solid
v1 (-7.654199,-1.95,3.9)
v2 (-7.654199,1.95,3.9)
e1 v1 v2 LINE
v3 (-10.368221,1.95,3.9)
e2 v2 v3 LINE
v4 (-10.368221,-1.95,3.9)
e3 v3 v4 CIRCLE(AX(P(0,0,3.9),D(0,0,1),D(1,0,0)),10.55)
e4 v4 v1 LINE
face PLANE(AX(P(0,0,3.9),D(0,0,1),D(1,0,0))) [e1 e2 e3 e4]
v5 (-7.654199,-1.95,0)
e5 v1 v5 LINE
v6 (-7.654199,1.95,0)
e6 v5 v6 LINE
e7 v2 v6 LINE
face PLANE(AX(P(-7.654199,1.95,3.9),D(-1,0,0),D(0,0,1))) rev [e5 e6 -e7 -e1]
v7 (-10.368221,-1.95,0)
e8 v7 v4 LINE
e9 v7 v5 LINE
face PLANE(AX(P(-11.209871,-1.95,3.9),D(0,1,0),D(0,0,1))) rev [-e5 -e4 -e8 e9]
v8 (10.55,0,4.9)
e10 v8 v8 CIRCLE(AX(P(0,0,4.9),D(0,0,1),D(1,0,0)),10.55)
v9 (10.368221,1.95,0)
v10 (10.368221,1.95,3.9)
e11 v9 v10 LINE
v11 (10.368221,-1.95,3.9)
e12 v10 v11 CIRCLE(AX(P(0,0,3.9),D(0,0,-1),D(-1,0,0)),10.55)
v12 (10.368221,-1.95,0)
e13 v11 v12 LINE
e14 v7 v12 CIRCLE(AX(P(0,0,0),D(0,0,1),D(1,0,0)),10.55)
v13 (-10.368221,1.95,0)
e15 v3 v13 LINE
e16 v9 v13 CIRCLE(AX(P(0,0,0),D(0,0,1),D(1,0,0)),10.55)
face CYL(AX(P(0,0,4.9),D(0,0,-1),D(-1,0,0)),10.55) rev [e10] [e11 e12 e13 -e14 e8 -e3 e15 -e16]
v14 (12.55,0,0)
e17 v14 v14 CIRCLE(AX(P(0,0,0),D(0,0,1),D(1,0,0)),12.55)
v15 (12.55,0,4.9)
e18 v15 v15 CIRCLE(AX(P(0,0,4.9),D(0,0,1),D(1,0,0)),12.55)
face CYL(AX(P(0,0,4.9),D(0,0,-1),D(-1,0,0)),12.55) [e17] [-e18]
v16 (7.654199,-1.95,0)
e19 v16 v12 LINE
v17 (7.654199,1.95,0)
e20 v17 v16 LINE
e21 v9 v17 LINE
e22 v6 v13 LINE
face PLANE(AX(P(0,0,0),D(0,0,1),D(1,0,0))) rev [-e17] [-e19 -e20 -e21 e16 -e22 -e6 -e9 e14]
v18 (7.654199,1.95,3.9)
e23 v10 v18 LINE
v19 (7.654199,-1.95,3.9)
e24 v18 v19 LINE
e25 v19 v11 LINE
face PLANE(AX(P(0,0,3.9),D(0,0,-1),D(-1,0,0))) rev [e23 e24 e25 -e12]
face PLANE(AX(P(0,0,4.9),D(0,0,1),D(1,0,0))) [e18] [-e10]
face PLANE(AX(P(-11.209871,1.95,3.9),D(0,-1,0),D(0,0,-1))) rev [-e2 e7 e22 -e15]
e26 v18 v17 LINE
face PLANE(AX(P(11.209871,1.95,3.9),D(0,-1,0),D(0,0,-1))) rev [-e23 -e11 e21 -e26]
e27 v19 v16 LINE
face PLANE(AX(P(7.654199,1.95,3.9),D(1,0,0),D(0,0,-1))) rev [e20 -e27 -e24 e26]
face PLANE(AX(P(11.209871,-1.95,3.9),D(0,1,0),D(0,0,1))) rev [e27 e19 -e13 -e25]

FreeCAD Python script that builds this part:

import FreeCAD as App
import Part
import Sketcher

V = App.Vector
Q = App.Units.Quantity

doc = App.newDocument("Part")
body = doc.addObject("PartDesign::Body", "Body")

# Sketch on XY plane
sketch1 = body.newObject("Sketcher::SketchObject", "Sketch")
sketch1.AttachmentSupport = (doc.getObject("XY_Plane"), [""])
sketch1.MapMode = "FlatFace"
sketch1.addGeometry([
    Part.Circle(V(0, 0, 0), V(0, 0, 1), 13),
    Part.Circle(V(0, 0, 0), V(0, 0, 1), 11),
], False)
sketch1.addConstraint([
    Sketcher.Constraint("Coincident", 0, 3, -1, 1),
    Sketcher.Constraint("Coincident", 1, 3, -1, 1),
    Sketcher.Constraint("Diameter", 0, Q("25.1 mm")),
    Sketcher.Constraint("Diameter", 1, Q("21.1 mm")),
])
pad1 = body.newObject("PartDesign::Pad", "Pad")
pad1.Profile = sketch1
pad1.Length = 4.9

# Sketch on XY plane
sketch2 = body.newObject("Sketcher::SketchObject", "Sketch001")
sketch2.AttachmentSupport = (doc.getObject("XY_Plane"), [""])
sketch2.MapMode = "FlatFace"
sketch2.addGeometry([
    Part.LineSegment(V(-11.2, 1.9, 0), V(-11.2, -1.9, 0)),  # 0
    Part.LineSegment(V(-11.2, -1.9, 0), V(-7.7, -1.9, 0)),  # 1
    Part.LineSegment(V(-7.7, -1.9, 0), V(-7.7, 1.9, 0)),  # 2
    Part.LineSegment(V(-7.7, 1.9, 0), V(-11.2, 1.9, 0)),  # 3
    Part.LineSegment(V(7.7, 1.9, 0), V(7.7, -1.9, 0)),  # 4
    Part.LineSegment(V(7.7, -1.9, 0), V(11.2, -1.9, 0)),  # 5
    Part.LineSegment(V(11.2, -1.9, 0), V(11.2, 1.9, 0)),  # 6
    Part.LineSegment(V(11.2, 1.9, 0), V(7.7, 1.9, 0)),  # 7
], False)
sketch2.addConstraint([
    Sketcher.Constraint("Coincident", 0, 2, 1, 1),
    Sketcher.Constraint("Coincident", 1, 2, 2, 1),
    Sketcher.Constraint("Coincident", 2, 2, 3, 1),
    Sketcher.Constraint("Coincident", 3, 2, 0, 1),
    Sketcher.Constraint("Coincident", 4, 2, 5, 1),
    Sketcher.Constraint("Coincident", 5, 2, 6, 1),
    Sketcher.Constraint("Coincident", 6, 2, 7, 1),
    Sketcher.Constraint("Coincident", 7, 2, 4, 1),
    Sketcher.Constraint("Vertical", 0),
    Sketcher.Constraint("Horizontal", 1),
    Sketcher.Constraint("Vertical", 2),
    Sketcher.Constraint("Horizontal", 3),
    Sketcher.Constraint("Vertical", 4),
    Sketcher.Constraint("Horizontal", 5),
    Sketcher.Constraint("Vertical", 6),
    Sketcher.Constraint("Horizontal", 7),
    Sketcher.Constraint("Symmetric", 2, 2, 4, 2, -1, 1),
    Sketcher.Constraint("Symmetric", 0, 2, 6, 2, -1, 1),
    Sketcher.Constraint("Horizontal", 1, 2, 4, 2),
    Sketcher.Constraint("DistanceY", 0, 2, 0, 1, Q("3.9 mm")),
    Sketcher.Constraint("DistanceX", 1, 2, -1, 1, Q("7.654199 mm")),
    Sketcher.Constraint("DistanceX", 1, 1, 1, 2, Q("3.555673 mm")),
])
pad2 = body.newObject("PartDesign::Pad", "Pad001")
pad2.Profile = sketch2
pad2.Length = 3.9

doc.recompute()
